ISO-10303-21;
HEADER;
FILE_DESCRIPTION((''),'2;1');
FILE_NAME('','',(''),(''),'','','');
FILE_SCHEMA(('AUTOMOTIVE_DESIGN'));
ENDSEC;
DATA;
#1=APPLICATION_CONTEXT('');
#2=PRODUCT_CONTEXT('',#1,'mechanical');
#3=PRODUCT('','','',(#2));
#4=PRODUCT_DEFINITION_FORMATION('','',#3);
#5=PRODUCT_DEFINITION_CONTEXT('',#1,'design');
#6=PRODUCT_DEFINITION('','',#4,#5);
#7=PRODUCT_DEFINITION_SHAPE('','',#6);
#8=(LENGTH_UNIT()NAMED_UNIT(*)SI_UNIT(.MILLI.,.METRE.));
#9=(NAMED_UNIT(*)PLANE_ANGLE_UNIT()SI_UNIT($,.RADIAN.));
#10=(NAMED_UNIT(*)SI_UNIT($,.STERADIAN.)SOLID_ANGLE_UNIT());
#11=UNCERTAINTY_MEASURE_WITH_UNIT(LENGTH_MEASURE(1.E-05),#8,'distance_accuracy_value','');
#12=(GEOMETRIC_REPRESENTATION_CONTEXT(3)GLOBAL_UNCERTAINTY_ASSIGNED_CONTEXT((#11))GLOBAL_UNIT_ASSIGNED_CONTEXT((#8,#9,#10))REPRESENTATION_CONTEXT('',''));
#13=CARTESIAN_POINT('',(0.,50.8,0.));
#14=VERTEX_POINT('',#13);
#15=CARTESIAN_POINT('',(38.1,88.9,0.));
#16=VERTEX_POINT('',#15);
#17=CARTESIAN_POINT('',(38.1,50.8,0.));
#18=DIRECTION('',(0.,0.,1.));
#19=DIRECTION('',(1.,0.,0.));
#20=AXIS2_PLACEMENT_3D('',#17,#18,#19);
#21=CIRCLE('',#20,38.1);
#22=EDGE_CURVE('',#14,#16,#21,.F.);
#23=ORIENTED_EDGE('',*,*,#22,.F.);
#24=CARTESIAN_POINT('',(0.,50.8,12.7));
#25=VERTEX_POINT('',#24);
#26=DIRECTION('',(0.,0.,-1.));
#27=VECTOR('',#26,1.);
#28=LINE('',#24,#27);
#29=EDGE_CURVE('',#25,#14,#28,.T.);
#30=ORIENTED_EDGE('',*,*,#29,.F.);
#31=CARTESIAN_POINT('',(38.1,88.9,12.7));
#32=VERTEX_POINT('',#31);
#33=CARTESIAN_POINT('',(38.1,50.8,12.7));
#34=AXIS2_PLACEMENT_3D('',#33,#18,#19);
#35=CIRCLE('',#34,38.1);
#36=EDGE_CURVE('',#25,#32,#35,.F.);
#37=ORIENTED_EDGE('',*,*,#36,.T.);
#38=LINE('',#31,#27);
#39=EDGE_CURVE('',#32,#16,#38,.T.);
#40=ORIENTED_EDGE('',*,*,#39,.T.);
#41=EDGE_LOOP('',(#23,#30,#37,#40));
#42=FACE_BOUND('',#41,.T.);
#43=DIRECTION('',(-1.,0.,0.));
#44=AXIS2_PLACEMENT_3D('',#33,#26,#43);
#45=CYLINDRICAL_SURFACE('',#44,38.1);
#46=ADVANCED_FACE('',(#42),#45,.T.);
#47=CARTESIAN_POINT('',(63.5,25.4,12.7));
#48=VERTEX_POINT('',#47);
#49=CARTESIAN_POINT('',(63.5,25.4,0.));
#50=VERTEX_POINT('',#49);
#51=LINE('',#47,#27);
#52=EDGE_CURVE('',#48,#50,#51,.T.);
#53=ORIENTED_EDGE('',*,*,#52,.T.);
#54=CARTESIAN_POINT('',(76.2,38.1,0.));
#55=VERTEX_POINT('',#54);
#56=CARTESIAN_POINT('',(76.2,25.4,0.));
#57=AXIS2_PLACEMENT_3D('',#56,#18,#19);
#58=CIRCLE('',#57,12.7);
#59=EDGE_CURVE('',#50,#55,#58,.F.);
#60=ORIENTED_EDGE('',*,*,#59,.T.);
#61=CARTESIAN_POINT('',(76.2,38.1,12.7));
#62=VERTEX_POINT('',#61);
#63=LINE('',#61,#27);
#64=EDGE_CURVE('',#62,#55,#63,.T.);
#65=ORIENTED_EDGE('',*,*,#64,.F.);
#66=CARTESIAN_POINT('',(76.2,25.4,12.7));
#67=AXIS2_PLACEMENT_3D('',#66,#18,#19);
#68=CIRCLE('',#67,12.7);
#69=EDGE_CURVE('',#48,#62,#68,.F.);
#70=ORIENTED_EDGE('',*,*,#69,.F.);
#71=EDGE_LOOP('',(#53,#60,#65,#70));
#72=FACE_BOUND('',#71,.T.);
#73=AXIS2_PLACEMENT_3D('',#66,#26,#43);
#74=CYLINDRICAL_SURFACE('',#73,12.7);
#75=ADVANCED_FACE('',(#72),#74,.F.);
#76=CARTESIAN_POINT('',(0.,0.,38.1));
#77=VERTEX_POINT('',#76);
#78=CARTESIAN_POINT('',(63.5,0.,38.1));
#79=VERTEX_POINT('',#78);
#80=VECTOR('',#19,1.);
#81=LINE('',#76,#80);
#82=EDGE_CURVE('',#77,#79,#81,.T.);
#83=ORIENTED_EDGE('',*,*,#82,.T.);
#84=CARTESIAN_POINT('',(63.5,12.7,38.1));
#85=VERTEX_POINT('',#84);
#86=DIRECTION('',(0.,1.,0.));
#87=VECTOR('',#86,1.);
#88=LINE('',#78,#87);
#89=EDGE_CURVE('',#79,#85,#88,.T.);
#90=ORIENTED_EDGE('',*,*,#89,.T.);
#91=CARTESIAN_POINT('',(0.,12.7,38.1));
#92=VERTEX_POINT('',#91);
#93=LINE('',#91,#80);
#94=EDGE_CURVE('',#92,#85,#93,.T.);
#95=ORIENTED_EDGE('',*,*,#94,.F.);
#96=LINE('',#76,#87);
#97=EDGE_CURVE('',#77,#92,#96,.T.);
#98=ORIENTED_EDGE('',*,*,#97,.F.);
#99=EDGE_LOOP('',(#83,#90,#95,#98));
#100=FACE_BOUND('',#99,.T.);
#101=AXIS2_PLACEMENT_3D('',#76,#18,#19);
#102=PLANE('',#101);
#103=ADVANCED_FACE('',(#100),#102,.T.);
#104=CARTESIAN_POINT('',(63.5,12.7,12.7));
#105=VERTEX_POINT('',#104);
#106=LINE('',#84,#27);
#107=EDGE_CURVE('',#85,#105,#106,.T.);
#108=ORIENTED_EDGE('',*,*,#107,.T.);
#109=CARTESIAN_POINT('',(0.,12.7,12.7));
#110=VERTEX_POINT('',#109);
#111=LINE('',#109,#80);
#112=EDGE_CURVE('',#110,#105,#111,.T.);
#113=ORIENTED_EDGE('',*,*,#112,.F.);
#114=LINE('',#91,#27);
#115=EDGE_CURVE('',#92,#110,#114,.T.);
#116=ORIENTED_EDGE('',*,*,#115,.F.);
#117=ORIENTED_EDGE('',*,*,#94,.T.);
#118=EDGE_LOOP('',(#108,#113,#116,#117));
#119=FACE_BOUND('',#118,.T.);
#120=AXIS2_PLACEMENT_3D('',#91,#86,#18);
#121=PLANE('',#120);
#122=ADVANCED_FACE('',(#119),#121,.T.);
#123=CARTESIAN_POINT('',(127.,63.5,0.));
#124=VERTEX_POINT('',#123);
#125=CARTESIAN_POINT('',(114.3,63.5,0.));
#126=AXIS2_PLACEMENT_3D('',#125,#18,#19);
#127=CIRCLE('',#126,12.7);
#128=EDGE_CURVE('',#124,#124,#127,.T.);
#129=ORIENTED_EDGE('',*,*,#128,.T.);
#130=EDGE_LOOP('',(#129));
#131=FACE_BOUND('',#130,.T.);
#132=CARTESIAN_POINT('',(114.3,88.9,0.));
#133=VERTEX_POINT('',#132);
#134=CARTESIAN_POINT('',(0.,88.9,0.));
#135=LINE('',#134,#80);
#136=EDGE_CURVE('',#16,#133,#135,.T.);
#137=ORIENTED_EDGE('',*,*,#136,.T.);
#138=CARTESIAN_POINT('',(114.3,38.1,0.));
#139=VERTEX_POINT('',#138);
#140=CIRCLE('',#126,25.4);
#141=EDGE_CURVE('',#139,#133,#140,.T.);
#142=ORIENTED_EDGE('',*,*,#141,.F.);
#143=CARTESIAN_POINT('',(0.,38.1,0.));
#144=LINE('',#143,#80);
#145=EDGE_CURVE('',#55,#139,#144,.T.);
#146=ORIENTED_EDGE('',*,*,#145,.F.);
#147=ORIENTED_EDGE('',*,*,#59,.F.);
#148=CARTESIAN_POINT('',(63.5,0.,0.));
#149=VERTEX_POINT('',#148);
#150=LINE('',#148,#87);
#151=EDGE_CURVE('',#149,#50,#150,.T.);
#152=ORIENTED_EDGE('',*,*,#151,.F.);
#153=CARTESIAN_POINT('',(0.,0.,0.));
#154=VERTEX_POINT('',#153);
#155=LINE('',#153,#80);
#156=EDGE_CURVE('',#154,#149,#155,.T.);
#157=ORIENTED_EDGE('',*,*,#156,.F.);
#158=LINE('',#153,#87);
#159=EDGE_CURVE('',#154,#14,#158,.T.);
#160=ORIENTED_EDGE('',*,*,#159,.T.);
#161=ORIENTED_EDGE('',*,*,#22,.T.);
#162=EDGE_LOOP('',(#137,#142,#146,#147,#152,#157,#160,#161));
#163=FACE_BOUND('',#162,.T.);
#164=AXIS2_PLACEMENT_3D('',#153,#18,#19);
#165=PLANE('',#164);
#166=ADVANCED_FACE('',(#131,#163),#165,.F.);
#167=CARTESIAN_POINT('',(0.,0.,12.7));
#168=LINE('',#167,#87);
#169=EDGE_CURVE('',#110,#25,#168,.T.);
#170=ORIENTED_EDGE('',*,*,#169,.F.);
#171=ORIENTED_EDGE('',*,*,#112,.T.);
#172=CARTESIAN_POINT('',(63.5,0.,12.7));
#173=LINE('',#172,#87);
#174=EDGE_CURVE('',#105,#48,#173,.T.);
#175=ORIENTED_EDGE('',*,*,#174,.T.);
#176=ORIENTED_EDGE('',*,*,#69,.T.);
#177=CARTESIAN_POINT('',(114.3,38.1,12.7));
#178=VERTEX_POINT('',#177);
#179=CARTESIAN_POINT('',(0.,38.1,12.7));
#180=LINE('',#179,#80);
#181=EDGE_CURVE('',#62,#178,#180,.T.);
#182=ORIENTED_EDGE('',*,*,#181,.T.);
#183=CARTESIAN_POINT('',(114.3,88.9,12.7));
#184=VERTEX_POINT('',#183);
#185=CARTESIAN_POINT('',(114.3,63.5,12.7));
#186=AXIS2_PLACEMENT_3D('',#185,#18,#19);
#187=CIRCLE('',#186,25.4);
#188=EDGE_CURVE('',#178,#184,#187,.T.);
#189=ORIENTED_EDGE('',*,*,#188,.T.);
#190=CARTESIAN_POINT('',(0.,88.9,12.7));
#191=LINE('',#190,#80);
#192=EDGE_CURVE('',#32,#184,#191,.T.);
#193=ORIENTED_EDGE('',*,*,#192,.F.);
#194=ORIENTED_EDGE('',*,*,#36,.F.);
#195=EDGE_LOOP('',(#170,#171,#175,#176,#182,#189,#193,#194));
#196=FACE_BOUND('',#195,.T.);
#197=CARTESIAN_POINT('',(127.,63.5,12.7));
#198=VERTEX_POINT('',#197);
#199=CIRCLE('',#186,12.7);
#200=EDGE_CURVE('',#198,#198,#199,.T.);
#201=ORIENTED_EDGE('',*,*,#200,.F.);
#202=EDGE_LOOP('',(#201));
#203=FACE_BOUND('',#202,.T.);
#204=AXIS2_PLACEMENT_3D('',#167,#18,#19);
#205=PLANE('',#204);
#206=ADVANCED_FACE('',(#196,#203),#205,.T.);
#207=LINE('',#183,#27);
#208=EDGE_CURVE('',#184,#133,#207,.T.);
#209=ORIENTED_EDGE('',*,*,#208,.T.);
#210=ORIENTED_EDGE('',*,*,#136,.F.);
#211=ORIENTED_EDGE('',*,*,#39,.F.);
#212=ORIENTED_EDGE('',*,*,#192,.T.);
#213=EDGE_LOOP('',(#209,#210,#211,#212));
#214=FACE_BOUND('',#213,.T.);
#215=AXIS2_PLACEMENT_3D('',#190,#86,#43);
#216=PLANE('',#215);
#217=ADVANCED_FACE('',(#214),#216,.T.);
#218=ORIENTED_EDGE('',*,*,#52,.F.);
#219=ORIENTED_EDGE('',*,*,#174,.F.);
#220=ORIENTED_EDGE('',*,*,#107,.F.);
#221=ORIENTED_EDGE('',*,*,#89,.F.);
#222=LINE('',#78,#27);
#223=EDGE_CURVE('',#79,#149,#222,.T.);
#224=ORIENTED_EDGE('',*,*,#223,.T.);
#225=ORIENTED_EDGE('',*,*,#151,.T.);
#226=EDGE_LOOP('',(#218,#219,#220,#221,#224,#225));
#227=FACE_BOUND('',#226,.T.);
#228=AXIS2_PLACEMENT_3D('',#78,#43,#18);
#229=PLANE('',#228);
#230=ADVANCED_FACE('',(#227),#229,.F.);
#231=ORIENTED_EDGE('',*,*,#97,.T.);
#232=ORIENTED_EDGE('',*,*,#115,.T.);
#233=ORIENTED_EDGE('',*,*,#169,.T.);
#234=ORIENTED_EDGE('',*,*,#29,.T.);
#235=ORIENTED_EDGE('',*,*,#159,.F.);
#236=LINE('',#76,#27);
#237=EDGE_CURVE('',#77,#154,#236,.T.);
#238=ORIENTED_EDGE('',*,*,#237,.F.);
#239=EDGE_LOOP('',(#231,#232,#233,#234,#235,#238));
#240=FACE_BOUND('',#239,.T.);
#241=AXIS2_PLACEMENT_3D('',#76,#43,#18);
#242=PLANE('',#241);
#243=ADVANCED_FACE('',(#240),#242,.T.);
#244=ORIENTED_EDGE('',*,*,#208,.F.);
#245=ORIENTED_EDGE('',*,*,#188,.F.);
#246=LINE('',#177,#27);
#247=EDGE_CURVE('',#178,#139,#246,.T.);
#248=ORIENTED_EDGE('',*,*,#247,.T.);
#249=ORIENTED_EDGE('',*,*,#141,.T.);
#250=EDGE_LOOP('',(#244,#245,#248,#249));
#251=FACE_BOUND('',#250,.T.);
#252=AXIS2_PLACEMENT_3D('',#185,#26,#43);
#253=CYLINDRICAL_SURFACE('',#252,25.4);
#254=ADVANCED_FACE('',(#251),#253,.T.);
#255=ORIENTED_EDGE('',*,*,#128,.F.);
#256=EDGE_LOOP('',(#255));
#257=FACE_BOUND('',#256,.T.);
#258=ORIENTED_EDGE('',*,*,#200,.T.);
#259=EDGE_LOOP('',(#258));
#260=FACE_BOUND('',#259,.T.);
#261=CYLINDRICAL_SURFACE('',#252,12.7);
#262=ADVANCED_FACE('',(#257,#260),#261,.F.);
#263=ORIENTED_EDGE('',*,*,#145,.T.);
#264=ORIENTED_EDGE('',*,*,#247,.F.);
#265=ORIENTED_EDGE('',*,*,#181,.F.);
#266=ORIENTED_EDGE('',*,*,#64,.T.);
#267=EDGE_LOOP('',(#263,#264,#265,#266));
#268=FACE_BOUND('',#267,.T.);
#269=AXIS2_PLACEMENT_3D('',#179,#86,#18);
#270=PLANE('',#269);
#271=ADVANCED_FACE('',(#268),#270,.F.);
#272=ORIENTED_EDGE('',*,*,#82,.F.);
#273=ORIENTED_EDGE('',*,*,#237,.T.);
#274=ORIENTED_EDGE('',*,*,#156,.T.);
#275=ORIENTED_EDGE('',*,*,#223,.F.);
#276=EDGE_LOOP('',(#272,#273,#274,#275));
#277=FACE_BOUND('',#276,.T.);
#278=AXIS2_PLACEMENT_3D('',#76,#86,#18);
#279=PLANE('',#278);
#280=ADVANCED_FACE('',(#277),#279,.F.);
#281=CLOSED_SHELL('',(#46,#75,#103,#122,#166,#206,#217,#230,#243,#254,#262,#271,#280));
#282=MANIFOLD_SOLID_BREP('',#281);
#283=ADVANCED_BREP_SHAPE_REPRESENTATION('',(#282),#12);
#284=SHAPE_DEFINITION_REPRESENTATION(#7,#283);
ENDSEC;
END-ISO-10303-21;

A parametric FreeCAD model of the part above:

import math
import FreeCAD as App
import Part
import Sketcher
Q = App.Units.Quantity

doc = App.newDocument("Part")
params = doc.addObject("Spreadsheet::Sheet", "Params")
for row, (alias, value) in enumerate([
    ("sketch1_width", "2.5 in"),
    ("sketch1_height", "0.5 in"),
    ("pad1_length", "1.5 in"),
    ("sketch2_radius", "1 in"),
    ("sketch2_radius2", "1.5 in"),
    ("sketch2_width", "3 in"),
    ("sketch2_width2", "2.5 in"),
    ("pad2_length", "0.5 in"),
], start=1):
    params.set(f"A{row}", alias)
    params.set(f"B{row}", "=" + value)
    params.setAlias(f"B{row}", alias)

body = doc.addObject("PartDesign::Body", "Body")

# Sketch on XY plane
sketch1 = doc.addObject("Sketcher::SketchObject", "Sketch")
body.addObject(sketch1)
sketch1.AttachmentSupport = (doc.XY_Plane, [""])
sketch1.MapMode = "FlatFace"
sketch1.addGeometry(Part.LineSegment(App.Vector(0, 13, 0), App.Vector(0, 0, 0)), False)
sketch1.addGeometry(Part.LineSegment(App.Vector(0, 0, 0), App.Vector(64, 0, 0)), False)
sketch1.addGeometry(Part.LineSegment(App.Vector(64, 0, 0), App.Vector(64, 13, 0)), False)
sketch1.addGeometry(Part.LineSegment(App.Vector(64, 13, 0), App.Vector(0, 13, 0)), False)
sketch1.addConstraint(Sketcher.Constraint("Coincident", 0, 2, 1, 1))
sketch1.addConstraint(Sketcher.Constraint("Coincident", 1, 2, 2, 1))
sketch1.addConstraint(Sketcher.Constraint("Coincident", 2, 2, 3, 1))
sketch1.addConstraint(Sketcher.Constraint("Coincident", 3, 2, 0, 1))
sketch1.addConstraint(Sketcher.Constraint("Vertical", 0))
sketch1.addConstraint(Sketcher.Constraint("Horizontal", 1))
sketch1.addConstraint(Sketcher.Constraint("Vertical", 2))
sketch1.addConstraint(Sketcher.Constraint("Horizontal", 3))
sketch1.addConstraint(Sketcher.Constraint("Coincident", 0, 2, -1, 1))
sketch1.addConstraint(Sketcher.Constraint("DistanceX", 1, 1, 1, 2, Q("2.5 in")))
sketch1.addConstraint(Sketcher.Constraint("DistanceY", 0, 2, 0, 1, Q("0.5 in")))
sketch1.setExpression("Constraints[9]", "Params.sketch1_width")
sketch1.setExpression("Constraints[10]", "Params.sketch1_height")
pad1 = doc.addObject("PartDesign::Pad", "Pad")
body.addObject(pad1)
pad1.Profile = sketch1
pad1.setExpression("Length", "Params.pad1_length")

# Sketch on XY plane
sketch2 = doc.addObject("Sketcher::SketchObject", "Sketch001")
body.addObject(sketch2)
sketch2.AttachmentSupport = (doc.XY_Plane, [""])
sketch2.MapMode = "FlatFace"
sketch2.addGeometry(Part.LineSegment(App.Vector(114, 89, 0), App.Vector(38, 89, 0)), False)
sketch2.addGeometry(Part.ArcOfCircle(Part.Circle(App.Vector(38, 51, 0), App.Vector(0, 0, 1), 38), math.radians(90), math.radians(180)), False)
sketch2.addGeometry(Part.LineSegment(App.Vector(0, 51, 0), App.Vector(0, 13, 0)), False)
sketch2.addGeometry(Part.LineSegment(App.Vector(0, 13, 0), App.Vector(64, 13, 0)), False)
sketch2.addGeometry(Part.LineSegment(App.Vector(64, 13, 0), App.Vector(64, 25, 0)), False)
sketch2.addGeometry(Part.ArcOfCircle(Part.Circle(App.Vector(76, 25, 0), App.Vector(0, 0, 1), 13), math.radians(90), math.radians(180)), False)
sketch2.addGeometry(Part.LineSegment(App.Vector(76, 38, 0), App.Vector(114, 38, 0)), False)
sketch2.addGeometry(Part.ArcOfCircle(Part.Circle(App.Vector(114, 64, 0), App.Vector(0, 0, 1), 25), math.radians(-90), math.radians(0)), False)
sketch2.addGeometry(Part.ArcOfCircle(Part.Circle(App.Vector(114, 64, 0), App.Vector(0, 0, 1), 25), math.radians(0), math.radians(90)), False)
sketch2.addGeometry(Part.ArcOfCircle(Part.Circle(App.Vector(114, 64, 0), App.Vector(0, 0, 1), 13), math.radians(90), math.radians(270)), False)
sketch2.addGeometry(Part.ArcOfCircle(Part.Circle(App.Vector(114, 64, 0), App.Vector(0, 0, 1), 13), math.radians(0), math.radians(90)), False)
sketch2.addGeometry(Part.ArcOfCircle(Part.Circle(App.Vector(114, 64, 0), App.Vector(0, 0, 1), 13), math.radians(-90), math.radians(0)), False)
sketch2.addConstraint(Sketcher.Constraint("Tangent", 0, 2, 1, 1))
sketch2.addConstraint(Sketcher.Constraint("Tangent", 1, 2, 2, 1))
sketch2.addConstraint(Sketcher.Constraint("Coincident", 2, 2, 3, 1))
sketch2.addConstraint(Sketcher.Constraint("Coincident", 3, 2, 4, 1))
sketch2.addConstraint(Sketcher.Constraint("Tangent", 4, 2, 5, 2))
sketch2.addConstraint(Sketcher.Constraint("Tangent", 5, 1, 6, 1))
sketch2.addConstraint(Sketcher.Constraint("Tangent", 6, 2, 7, 1))
sketch2.addConstraint(Sketcher.Constraint("Tangent", 7, 2, 8, 1))
sketch2.addConstraint(Sketcher.Constraint("Tangent", 8, 2, 0, 1))
sketch2.addConstraint(Sketcher.Constraint("Tangent", 9, 1, 10, 2))
sketch2.addConstraint(Sketcher.Constraint("Tangent", 10, 1, 11, 2))
sketch2.addConstraint(Sketcher.Constraint("Tangent", 11, 1, 9, 2))
sketch2.addConstraint(Sketcher.Constraint("Horizontal", 0))
sketch2.addConstraint(Sketcher.Constraint("Vertical", 2))
sketch2.addConstraint(Sketcher.Constraint("Horizontal", 3))
sketch2.addConstraint(Sketcher.Constraint("Vertical", 4))
sketch2.addConstraint(Sketcher.Constraint("Horizontal", 6))
sketch2.addConstraint(Sketcher.Constraint("Coincident", 9, 3, 7, 3))
sketch2.addConstraint(Sketcher.Constraint("Equal", 7, 8))
sketch2.addConstraint(Sketcher.Constraint("Equal", 5, 9))
sketch2.addConstraint(Sketcher.Constraint("PointOnObject", 1, 2, -2))
sketch2.addConstraint(Sketcher.Constraint("Horizontal", 11, 3, 7, 2))
sketch2.addConstraint(Sketcher.Constraint("Horizontal", 7, 2, 10, 1))
sketch2.addConstraint(Sketcher.Constraint("Horizontal", 1, 2, 11, 1))
sketch2.addConstraint(Sketcher.Constraint("Vertical", 8, 2, 9, 1))
sketch2.addConstraint(Sketcher.Constraint("Vertical", 9, 1, 11, 1))
sketch2.addConstraint(Sketcher.Constraint("Equal", 6, 2))
sketch2.addConstraint(Sketcher.Constraint("Radius", 7, Q("1 in")))
sketch2.addConstraint(Sketcher.Constraint("Radius", 1, Q("1.5 in")))
sketch2.addConstraint(Sketcher.Constraint("DistanceX", 0, 2, 0, 1, Q("3 in")))
sketch2.addConstraint(Sketcher.Constraint("DistanceX", 3, 1, 3, 2, Q("2.5 in")))
sketch2.addConstraint(Sketcher.Constraint("DistanceY", -1, 1, 1, 3, Q("2 in")))
sketch2.setExpression("Constraints[27]", "Params.sketch2_radius")
sketch2.setExpression("Constraints[28]", "Params.sketch2_radius2")
sketch2.setExpression("Constraints[29]", "Params.sketch2_width")
sketch2.setExpression("Constraints[30]", "Params.sketch2_width2")
pad2 = doc.addObject("PartDesign::Pad", "Pad001")
body.addObject(pad2)
pad2.Profile = sketch2
pad2.setExpression("Length", "Params.pad2_length")

doc.recompute()
